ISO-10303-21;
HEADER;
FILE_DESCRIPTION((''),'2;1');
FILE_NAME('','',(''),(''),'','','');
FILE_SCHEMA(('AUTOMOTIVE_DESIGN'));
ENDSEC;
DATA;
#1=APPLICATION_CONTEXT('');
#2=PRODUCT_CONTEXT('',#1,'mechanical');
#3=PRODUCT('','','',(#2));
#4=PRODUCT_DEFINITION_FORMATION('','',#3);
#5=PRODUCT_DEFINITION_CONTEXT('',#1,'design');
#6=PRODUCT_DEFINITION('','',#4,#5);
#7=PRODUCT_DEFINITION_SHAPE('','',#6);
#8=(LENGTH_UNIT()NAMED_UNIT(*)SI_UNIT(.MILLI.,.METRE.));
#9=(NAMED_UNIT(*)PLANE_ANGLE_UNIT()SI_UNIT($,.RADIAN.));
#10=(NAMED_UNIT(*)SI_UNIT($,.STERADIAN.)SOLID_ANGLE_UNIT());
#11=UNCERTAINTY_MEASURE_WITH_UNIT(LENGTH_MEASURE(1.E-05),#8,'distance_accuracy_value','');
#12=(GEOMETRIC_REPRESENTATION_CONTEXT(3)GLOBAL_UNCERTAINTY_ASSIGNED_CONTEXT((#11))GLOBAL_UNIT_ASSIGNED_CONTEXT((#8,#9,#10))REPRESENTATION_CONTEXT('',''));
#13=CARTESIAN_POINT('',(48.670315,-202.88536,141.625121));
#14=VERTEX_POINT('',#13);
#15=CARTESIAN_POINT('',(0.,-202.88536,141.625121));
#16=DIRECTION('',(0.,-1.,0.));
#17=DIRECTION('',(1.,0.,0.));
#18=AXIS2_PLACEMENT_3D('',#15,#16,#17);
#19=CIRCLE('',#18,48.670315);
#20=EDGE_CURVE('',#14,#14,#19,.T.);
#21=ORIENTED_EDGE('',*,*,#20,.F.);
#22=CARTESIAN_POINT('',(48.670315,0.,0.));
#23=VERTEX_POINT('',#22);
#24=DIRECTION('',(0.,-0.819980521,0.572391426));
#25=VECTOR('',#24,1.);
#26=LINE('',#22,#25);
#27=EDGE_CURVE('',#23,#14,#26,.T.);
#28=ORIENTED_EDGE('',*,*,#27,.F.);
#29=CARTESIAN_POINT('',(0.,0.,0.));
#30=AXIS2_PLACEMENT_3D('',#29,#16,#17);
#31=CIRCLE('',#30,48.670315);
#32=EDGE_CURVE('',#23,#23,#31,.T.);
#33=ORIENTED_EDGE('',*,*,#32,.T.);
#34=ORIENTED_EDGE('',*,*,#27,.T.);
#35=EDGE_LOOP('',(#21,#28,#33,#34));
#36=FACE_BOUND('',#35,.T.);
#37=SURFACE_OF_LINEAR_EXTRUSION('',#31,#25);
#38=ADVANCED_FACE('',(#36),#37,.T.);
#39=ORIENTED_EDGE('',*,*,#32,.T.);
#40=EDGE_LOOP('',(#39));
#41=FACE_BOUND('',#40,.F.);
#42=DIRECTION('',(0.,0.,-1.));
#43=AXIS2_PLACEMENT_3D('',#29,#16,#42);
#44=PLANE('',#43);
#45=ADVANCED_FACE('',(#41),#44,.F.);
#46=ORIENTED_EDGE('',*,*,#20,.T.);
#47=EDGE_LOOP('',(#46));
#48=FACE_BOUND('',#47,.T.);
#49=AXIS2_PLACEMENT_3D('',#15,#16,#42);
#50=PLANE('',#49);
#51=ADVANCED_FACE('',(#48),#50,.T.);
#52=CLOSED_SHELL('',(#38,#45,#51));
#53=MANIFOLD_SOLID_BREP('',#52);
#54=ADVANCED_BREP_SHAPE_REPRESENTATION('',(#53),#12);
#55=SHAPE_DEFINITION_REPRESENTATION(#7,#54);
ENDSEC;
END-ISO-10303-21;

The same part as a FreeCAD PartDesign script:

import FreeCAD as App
import Part
import Sketcher
from FreeCAD import Vector
Q = App.Units.Quantity

doc = App.newDocument("Part")
body = doc.addObject("PartDesign::Body", "Body")

sketch1 = doc.addObject("Sketcher::SketchObject", "Sketch")
body.addObject(sketch1)
sketch1.AttachmentSupport = (doc.XZ_Plane, [""])
sketch1.MapMode = "FlatFace"
sketch1.addGeometry(Part.Circle(Vector(0, 0, 0), Vector(0, 0, 1), 49), False)
sketch1.addConstraint([
    Sketcher.Constraint("Coincident", 0, 3, -1, 1),
    Sketcher.Constraint("Diameter", 0, Q("97.34063 mm")),
])

sketch2 = doc.addObject("Sketcher::SketchObject", "Sketch001")
body.addObject(sketch2)
sketch2.Placement = App.Placement(Vector(0, 0, 0), App.Rotation(Vector(0, -0.819980521, 0.572391426), Vector(0.999999999, 0, 0), Vector(0, 0.572391426, 0.819980521), "ZXY"))
sketch2.addGeometry(Part.LineSegment(Vector(0, 0, 0), Vector(247, 0, 0)), False)
sketch2.addConstraint([
    Sketcher.Constraint("Horizontal", 0),
    Sketcher.Constraint("Coincident", 0, 1, -1, 1),
    Sketcher.Constraint("DistanceX", 0, 1, 0, 2, Q("247.427048 mm")),
])
doc.recompute()

additivepipe = doc.addObject("PartDesign::AdditivePipe", "AdditivePipe")
body.addObject(additivepipe)
additivepipe.Profile = sketch1
additivepipe.Spine = (sketch2, ["Edge1"])

doc.recompute()
